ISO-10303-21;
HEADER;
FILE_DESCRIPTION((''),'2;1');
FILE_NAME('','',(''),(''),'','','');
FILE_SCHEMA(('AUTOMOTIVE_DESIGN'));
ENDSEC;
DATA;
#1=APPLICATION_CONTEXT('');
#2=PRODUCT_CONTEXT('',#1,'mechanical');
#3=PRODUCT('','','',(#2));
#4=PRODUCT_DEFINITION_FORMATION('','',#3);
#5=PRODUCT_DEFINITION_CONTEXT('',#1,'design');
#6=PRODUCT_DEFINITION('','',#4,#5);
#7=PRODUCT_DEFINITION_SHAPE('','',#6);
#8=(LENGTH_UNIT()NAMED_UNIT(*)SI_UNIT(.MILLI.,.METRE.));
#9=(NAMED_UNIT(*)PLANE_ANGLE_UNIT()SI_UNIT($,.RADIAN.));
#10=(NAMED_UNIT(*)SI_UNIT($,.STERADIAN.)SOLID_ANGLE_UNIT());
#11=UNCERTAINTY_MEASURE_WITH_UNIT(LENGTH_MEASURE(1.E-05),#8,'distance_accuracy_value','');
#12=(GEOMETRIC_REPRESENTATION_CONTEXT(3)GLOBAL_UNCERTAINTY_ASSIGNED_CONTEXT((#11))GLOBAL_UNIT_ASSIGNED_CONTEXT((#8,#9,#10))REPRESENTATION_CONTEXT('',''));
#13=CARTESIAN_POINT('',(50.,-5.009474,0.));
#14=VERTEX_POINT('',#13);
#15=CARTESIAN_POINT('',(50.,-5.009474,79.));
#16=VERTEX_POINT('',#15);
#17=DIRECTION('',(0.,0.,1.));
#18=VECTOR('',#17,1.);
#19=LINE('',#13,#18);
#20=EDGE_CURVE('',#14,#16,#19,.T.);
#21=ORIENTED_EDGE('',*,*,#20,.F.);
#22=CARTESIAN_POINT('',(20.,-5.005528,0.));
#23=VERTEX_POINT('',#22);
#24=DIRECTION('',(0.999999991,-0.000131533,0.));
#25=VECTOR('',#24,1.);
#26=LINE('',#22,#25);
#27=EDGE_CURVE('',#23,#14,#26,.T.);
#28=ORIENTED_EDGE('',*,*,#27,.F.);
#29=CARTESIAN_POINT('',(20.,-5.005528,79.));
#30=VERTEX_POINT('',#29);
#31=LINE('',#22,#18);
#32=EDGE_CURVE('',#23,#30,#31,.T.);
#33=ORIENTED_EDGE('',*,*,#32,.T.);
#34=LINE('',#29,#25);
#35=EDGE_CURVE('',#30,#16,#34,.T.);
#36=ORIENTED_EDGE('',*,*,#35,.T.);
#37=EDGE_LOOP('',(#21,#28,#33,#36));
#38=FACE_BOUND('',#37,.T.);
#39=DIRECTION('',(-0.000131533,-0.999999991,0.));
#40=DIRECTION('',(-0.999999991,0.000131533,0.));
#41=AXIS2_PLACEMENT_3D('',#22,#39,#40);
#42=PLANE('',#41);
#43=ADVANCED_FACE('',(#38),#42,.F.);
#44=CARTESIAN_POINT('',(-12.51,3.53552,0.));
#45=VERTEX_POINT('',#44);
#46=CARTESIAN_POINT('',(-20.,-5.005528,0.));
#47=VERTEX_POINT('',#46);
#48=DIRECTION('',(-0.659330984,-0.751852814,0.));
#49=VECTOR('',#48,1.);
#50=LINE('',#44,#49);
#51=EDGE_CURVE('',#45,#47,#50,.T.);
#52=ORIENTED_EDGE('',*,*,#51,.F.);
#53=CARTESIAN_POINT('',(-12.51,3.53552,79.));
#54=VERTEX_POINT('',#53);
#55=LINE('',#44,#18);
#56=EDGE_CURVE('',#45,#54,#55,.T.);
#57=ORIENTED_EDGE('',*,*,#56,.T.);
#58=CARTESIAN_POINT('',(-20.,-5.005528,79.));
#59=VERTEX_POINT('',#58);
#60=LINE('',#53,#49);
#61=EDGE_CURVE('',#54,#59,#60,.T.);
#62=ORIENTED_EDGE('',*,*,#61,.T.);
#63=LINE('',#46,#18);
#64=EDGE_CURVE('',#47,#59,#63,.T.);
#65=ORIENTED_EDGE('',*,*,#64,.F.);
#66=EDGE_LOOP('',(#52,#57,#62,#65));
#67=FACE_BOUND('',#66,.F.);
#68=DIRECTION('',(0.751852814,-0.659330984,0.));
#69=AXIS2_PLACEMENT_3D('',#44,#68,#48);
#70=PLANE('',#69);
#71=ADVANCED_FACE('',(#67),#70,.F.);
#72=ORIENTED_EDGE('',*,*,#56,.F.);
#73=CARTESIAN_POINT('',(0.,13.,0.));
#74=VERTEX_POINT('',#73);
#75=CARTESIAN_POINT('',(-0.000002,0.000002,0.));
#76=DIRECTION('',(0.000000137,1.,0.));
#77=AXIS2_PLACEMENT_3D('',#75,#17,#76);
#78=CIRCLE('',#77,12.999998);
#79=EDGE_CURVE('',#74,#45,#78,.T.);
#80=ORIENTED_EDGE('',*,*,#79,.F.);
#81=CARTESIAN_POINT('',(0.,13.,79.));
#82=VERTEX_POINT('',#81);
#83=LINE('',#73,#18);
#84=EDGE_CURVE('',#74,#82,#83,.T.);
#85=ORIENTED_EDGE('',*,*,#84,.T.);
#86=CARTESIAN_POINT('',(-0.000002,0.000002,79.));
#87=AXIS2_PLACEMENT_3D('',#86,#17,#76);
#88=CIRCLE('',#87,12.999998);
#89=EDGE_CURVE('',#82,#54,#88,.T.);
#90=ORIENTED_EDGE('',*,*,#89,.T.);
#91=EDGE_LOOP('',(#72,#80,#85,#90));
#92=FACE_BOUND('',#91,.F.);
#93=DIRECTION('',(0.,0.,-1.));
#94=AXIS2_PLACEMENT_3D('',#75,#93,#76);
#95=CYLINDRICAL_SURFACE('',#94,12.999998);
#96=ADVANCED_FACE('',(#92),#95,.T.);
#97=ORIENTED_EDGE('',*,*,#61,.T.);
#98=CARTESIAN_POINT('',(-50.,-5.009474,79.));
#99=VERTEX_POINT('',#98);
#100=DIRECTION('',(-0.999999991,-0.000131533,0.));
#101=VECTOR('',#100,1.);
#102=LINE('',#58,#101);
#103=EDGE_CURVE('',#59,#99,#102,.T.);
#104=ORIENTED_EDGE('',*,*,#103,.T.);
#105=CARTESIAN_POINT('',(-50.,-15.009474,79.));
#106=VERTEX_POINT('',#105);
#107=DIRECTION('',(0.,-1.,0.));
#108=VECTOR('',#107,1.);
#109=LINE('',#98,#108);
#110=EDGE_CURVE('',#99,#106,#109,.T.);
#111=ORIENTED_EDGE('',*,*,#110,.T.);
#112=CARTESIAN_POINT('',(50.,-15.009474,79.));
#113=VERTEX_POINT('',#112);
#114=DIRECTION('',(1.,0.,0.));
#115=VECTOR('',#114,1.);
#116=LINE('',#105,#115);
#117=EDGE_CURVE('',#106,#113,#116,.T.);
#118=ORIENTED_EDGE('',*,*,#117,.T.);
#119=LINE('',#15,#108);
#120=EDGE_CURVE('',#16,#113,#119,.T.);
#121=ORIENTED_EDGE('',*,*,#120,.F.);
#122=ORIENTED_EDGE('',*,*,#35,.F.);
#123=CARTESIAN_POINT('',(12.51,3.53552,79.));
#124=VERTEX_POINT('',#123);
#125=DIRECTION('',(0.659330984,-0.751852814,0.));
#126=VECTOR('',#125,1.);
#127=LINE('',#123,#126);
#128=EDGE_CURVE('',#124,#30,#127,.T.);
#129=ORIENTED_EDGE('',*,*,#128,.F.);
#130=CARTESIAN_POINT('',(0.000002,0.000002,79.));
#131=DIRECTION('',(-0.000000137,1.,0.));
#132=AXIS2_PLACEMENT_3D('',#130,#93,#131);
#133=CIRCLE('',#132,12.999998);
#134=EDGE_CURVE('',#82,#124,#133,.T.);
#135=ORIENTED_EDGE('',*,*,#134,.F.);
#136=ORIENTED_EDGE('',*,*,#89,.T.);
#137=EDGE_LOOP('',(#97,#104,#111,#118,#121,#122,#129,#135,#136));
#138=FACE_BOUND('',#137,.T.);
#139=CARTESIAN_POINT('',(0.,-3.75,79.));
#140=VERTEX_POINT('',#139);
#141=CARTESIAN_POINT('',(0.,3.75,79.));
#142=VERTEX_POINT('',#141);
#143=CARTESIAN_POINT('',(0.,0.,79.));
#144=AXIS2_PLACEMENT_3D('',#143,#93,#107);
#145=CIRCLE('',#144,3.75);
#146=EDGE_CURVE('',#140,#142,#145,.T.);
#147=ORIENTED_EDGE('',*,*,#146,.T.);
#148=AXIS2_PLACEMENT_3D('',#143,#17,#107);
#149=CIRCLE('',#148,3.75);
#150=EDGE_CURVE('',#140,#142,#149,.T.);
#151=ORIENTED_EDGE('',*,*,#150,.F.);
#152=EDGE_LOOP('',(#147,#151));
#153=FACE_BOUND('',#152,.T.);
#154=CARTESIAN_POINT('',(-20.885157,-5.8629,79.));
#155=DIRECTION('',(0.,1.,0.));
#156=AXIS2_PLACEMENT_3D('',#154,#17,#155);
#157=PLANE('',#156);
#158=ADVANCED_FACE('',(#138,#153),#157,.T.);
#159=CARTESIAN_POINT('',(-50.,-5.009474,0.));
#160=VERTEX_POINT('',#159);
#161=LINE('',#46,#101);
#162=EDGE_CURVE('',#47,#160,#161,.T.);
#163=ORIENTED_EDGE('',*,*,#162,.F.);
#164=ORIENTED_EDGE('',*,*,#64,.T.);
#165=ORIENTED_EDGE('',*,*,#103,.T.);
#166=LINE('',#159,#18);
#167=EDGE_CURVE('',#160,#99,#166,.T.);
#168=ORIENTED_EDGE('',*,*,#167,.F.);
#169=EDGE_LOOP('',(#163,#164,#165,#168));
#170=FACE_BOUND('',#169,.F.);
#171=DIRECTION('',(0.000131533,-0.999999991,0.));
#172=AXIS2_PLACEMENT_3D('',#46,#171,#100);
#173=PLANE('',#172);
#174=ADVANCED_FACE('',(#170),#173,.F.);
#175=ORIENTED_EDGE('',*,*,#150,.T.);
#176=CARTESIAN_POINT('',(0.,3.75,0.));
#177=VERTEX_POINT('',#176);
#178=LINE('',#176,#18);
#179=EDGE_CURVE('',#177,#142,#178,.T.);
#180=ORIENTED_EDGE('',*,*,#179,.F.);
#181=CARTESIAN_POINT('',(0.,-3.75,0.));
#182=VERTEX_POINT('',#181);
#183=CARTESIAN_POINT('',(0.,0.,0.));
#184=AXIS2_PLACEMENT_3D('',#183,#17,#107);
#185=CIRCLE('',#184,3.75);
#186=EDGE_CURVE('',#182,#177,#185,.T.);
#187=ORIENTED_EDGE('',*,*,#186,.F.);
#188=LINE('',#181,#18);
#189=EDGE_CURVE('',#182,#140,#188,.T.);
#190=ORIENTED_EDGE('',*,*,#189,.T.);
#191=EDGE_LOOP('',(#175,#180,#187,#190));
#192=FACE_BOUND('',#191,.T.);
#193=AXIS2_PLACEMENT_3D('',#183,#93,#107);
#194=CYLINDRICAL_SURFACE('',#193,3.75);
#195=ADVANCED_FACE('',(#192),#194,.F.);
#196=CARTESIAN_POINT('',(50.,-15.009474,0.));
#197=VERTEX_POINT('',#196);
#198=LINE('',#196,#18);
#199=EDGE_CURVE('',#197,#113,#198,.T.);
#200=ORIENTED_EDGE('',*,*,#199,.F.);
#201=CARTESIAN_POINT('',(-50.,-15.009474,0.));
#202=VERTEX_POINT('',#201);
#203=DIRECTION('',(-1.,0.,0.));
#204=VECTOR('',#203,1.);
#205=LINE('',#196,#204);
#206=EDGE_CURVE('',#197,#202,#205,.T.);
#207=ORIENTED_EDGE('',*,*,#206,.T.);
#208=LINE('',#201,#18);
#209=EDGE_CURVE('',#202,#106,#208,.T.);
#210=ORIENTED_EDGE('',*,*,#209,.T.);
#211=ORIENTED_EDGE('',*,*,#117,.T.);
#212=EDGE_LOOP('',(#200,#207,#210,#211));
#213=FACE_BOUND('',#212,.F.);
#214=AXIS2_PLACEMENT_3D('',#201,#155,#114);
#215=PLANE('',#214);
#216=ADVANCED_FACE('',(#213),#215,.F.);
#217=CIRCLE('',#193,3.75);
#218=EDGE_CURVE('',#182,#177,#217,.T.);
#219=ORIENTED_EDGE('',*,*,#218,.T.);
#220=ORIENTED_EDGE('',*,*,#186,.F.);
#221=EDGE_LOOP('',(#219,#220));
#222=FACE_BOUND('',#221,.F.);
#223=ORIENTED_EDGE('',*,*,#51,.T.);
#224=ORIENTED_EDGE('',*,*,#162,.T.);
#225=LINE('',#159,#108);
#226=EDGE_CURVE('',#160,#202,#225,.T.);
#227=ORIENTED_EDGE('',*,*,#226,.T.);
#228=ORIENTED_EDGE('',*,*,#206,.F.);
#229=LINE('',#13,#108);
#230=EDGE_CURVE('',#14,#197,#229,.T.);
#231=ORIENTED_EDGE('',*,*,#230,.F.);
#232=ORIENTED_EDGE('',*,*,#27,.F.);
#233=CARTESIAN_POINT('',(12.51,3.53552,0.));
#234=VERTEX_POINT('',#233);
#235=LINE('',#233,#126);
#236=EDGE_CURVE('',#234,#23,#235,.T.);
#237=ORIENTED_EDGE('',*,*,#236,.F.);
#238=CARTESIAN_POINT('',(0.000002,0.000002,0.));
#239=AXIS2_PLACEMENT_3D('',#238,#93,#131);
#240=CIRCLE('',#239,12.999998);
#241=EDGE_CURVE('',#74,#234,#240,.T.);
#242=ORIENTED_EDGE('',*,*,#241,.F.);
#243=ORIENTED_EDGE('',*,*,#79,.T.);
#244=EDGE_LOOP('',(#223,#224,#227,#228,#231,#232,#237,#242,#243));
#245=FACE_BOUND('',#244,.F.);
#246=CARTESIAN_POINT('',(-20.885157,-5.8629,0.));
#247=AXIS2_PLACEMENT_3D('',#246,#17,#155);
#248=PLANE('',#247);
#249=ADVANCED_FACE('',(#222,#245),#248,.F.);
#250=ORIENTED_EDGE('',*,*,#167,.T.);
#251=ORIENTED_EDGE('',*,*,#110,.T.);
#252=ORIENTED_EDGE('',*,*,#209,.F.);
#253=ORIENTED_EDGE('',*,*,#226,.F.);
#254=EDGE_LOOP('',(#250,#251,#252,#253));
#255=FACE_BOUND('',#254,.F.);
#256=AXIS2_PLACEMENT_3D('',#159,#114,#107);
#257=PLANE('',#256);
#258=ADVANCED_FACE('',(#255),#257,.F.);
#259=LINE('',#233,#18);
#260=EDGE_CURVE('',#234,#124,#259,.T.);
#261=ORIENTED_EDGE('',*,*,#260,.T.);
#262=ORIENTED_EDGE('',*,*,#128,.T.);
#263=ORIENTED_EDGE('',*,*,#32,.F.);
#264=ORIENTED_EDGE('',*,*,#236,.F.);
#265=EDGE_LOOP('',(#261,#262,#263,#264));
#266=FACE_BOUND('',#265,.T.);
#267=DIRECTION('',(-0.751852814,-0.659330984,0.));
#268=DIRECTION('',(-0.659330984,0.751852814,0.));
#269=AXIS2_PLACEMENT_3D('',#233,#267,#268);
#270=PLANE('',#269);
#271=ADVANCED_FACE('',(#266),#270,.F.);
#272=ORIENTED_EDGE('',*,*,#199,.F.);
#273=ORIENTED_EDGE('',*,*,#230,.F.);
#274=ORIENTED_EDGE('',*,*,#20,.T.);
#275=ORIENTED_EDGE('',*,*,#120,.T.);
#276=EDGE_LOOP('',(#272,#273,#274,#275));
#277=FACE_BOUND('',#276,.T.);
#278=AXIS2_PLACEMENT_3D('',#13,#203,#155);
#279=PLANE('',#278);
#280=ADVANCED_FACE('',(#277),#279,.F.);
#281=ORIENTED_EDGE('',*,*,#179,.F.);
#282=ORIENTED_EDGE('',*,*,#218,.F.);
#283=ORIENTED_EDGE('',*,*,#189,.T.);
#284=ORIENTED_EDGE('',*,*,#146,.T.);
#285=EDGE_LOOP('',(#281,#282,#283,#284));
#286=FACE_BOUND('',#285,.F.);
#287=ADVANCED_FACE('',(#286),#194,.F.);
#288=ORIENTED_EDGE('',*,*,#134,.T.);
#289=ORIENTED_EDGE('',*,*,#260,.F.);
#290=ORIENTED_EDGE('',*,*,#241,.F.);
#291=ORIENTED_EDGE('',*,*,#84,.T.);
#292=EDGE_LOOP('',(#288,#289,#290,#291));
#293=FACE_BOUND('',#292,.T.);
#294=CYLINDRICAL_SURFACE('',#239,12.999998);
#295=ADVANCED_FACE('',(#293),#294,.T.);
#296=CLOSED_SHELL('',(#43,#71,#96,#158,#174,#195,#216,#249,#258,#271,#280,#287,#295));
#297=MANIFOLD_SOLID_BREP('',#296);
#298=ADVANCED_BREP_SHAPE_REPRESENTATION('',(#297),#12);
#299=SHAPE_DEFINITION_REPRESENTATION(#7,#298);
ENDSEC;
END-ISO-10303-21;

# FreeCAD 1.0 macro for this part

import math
import FreeCAD as App
import Part
import Sketcher
from FreeCAD import Vector
Q = App.Units.Quantity

doc = App.newDocument("Part")
params = doc.addObject("Spreadsheet::Sheet", "Params")
for row, (alias, value) in enumerate([
    ("sketch1_width", "50 mm"),
    ("sketch1_height", "10 mm"),
    ("sketch1_radius", "3.75 mm"),
    ("sketch1_length", "30 mm"),
    ("sketch1_length2", "11.36 mm"),
    ("pad1_length", "79 mm"),
], start=1):
    params.set(f"A{row}", alias)
    params.set(f"B{row}", "=" + value)
    params.setAlias(f"B{row}", alias)

body = doc.addObject("PartDesign::Body", "Body")

# Sketch on XY plane
sketch1 = body.newObject("Sketcher::SketchObject", "Sketch")
sketch1.AttachmentSupport = (doc.getObject("XY_Plane"), [""])
sketch1.MapMode = "FlatFace"
sketch1.addGeometry([
    Part.ArcOfCircle(Part.Circle(Vector(-0.000002, 0.000002, 0), Vector(0, 0, 1), 12.999998), math.radians(89.999992), math.radians(164.218893)),  # 0
    Part.LineSegment(Vector(-12.51, 3.53552, 0), Vector(-20, -5.005528, 0)),  # 1
    Part.LineSegment(Vector(-20, -5.005528, 0), Vector(-50, -5.009474, 0)),  # 2
    Part.LineSegment(Vector(-50, -5.009474, 0), Vector(-50, -15.009474, 0)),  # 3
    Part.LineSegment(Vector(-50, -15.009474, 0), Vector(0, -15.009474, 0)),  # 4
    Part.LineSegment(Vector(0, -15.009474, 0), Vector(0, -3.75, 0)),  # 5
    Part.ArcOfCircle(Part.Circle(Vector(0, 0, 0), Vector(0, 0, 1), 3.75), math.radians(90), math.radians(270)),  # 6
    Part.LineSegment(Vector(0, 3.75, 0), Vector(0, 13, 0)),  # 7
], False)
sketch1.addConstraint([
    Sketcher.Constraint("Coincident", 0, 2, 1, 1),
    Sketcher.Constraint("Coincident", 1, 2, 2, 1),
    Sketcher.Constraint("Coincident", 2, 2, 3, 1),
    Sketcher.Constraint("Coincident", 3, 2, 4, 1),
    Sketcher.Constraint("Coincident", 4, 2, 5, 1),
    Sketcher.Constraint("Coincident", 5, 2, 6, 2),
    Sketcher.Constraint("Coincident", 6, 1, 7, 1),
    Sketcher.Constraint("Coincident", 7, 2, 0, 1),
    Sketcher.Constraint("Vertical", 3),
    Sketcher.Constraint("Horizontal", 4),
    Sketcher.Constraint("Vertical", 5),
    Sketcher.Constraint("Vertical", 7),
    Sketcher.Constraint("Coincident", 0, 3, -1, 1),
    Sketcher.Constraint("Coincident", 6, 3, -1, 1),
    Sketcher.Constraint("PointOnObject", 4, 2, -2),
    Sketcher.Constraint("PointOnObject", 6, 1, -2),
    Sketcher.Constraint("DistanceX", 4, 1, 4, 2, Q("50 mm")),
    Sketcher.Constraint("DistanceY", 3, 2, 3, 1, Q("10 mm")),
    Sketcher.Constraint("Radius", 6, Q("3.75 mm")),
    Sketcher.Constraint("Distance", 2, Q("30 mm")),
    Sketcher.Constraint("DistanceY", -1, 1, 7, 2, Q("13 mm")),
    Sketcher.Constraint("Distance", 1, Q("11.36 mm")),
    Sketcher.Constraint("DistanceX", 0, 2, -1, 1, Q("12.51 mm")),
    Sketcher.Constraint("DistanceY", 5, 1, 5, 2, Q("11.259474 mm")),
])
sketch1.setExpression("Constraints[16]", "Params.sketch1_width")
sketch1.setExpression("Constraints[17]", "Params.sketch1_height")
sketch1.setExpression("Constraints[18]", "Params.sketch1_radius")
sketch1.setExpression("Constraints[19]", "Params.sketch1_length")
sketch1.setExpression("Constraints[21]", "Params.sketch1_length2")
pad1 = body.newObject("PartDesign::Pad", "Pad")
pad1.Profile = sketch1
pad1.setExpression("Length", "Params.pad1_length")
body2 = doc.addObject("PartDesign::Body", "Body001")
doc.recompute()

mirroring = doc.addObject("Part::Mirroring", "Mirroring")
mirroring.Source = body
mirroring.Base = Vector(0, 0, 0)
mirroring.Normal = Vector(1, 0, 0)
body2.BaseFeature = mirroring
doc.recompute()

boolean = body2.newObject("PartDesign::Boolean", "Boolean")
boolean.Type = "Fuse"
boolean.addObjects([body])
mirroring.Visibility = False

doc.recompute()
